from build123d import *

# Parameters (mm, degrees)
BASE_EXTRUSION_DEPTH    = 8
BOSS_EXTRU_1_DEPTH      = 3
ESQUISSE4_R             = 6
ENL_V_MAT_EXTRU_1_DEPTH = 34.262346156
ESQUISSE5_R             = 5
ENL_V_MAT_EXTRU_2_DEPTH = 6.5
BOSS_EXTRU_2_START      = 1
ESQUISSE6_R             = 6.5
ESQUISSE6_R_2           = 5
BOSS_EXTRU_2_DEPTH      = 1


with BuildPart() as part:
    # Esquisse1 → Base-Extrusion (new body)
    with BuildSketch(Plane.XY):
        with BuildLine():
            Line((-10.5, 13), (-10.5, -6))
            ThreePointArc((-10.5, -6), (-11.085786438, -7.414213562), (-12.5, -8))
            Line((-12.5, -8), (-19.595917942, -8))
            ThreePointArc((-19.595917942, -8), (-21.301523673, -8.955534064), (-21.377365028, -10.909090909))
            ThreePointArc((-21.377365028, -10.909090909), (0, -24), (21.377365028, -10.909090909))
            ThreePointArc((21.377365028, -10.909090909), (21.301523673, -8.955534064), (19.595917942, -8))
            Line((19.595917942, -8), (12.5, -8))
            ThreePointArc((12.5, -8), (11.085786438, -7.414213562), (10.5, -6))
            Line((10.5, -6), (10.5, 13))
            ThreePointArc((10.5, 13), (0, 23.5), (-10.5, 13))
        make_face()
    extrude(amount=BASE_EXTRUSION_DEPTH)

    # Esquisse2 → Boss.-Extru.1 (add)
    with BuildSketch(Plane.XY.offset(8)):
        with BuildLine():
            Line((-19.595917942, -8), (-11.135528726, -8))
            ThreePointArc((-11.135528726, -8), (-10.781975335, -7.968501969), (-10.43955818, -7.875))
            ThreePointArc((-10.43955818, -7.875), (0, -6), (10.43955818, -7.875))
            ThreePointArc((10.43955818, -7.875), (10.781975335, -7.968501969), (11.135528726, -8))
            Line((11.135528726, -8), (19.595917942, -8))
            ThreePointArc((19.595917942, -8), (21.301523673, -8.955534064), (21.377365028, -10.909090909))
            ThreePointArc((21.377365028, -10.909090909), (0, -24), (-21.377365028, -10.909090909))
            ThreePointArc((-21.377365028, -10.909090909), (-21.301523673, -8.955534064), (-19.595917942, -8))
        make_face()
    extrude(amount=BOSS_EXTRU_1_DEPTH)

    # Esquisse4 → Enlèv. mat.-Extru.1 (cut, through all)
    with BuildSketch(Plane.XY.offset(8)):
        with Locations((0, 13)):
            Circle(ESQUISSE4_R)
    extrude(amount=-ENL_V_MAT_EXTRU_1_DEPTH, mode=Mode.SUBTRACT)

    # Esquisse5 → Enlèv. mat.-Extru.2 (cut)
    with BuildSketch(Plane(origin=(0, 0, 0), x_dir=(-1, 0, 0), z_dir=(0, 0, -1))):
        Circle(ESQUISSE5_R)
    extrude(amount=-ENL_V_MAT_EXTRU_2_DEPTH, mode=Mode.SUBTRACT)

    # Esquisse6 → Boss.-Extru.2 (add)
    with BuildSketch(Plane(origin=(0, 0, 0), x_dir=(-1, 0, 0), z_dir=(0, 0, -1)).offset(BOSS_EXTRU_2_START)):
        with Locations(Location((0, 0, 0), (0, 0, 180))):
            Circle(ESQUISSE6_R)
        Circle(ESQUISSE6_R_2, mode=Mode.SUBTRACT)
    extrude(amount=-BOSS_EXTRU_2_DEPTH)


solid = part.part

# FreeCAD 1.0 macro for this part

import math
import FreeCAD as App
import Part
import Sketcher
from FreeCAD import Vector

doc = App.newDocument("Part")
body = doc.addObject("PartDesign::Body", "Body")

sketch1 = doc.addObject("Sketcher::SketchObject", "Sketch")
body.addObject(sketch1)
sketch1.AttachmentSupport = (doc.XY_Plane, [""])
sketch1.MapMode = "FlatFace"
sketch1.addGeometry([
    Part.LineSegment(Vector(-10.5, 13, 0), Vector(-10.5, -6, 0)),
    Part.ArcOfCircle(Part.Circle(Vector(-12.5, -6, 0), Vector(0, 0, 1), 2), math.radians(-90), math.radians(0)),
    Part.LineSegment(Vector(-12.5, -8, 0), Vector(-19.6, -8, 0)),
    Part.ArcOfCircle(Part.Circle(Vector(-19.6, -10, 0), Vector(0, 0, 1), 2), math.radians(90), math.radians(207)),
    Part.ArcOfCircle(Part.Circle(Vector(0, 0, 0), Vector(0, 0, 1), 24), math.radians(-153), math.radians(-27)),
    Part.ArcOfCircle(Part.Circle(Vector(19.6, -10, 0), Vector(0, 0, 1), 2), math.radians(-27), math.radians(90)),
    Part.LineSegment(Vector(19.6, -8, 0), Vector(12.5, -8, 0)),
    Part.ArcOfCircle(Part.Circle(Vector(12.5, -6, 0), Vector(0, 0, 1), 2), math.radians(-180), math.radians(-90)),
    Part.LineSegment(Vector(10.5, -6, 0), Vector(10.5, 13, 0)),
    Part.ArcOfCircle(Part.Circle(Vector(0, 13, 0), Vector(0, 0, 1), 10.5), math.radians(0), math.radians(180)),
], False)
sketch1.addConstraint([
    Sketcher.Constraint("Tangent", 0, 2, 1, 2),
    Sketcher.Constraint("Tangent", 1, 1, 2, 1),
    Sketcher.Constraint("Tangent", 2, 2, 3, 1),
    Sketcher.Constraint("Tangent", 3, 2, 4, 1),
    Sketcher.Constraint("Tangent", 4, 2, 5, 1),
    Sketcher.Constraint("Tangent", 5, 2, 6, 1),
    Sketcher.Constraint("Tangent", 6, 2, 7, 2),
    Sketcher.Constraint("Tangent", 7, 1, 8, 1),
    Sketcher.Constraint("Tangent", 8, 2, 9, 1),
    Sketcher.Constraint("Tangent", 9, 2, 0, 1),
    Sketcher.Constraint("Vertical", 0),
    Sketcher.Constraint("Horizontal", 2),
    Sketcher.Constraint("Horizontal", 6),
    Sketcher.Constraint("Vertical", 8),
    Sketcher.Constraint("Coincident", 4, 3, -1, 1),
    Sketcher.Constraint("Equal", 1, 3),
    Sketcher.Constraint("Equal", 3, 5),
    Sketcher.Constraint("Equal", 5, 7),
    Sketcher.Constraint("Symmetric", 1, 3, 7, 3, -2),
    Sketcher.Constraint("Radius", 1, 2.0),
    Sketcher.Constraint("Radius", 4, 24.0),
    Sketcher.Constraint("Radius", 9, 10.5),
    Sketcher.Constraint("DistanceY", 0, 2, 0, 1, 19.0),
    Sketcher.Constraint("DistanceY", 1, 3, -1, 1, 6.0),
])
pad1 = doc.addObject("PartDesign::Pad", "Pad")
body.addObject(pad1)
pad1.Profile = sketch1
pad1.Length = 8

sketch2 = doc.addObject("Sketcher::SketchObject", "Sketch001")
body.addObject(sketch2)
sketch2.AttachmentSupport = (doc.XY_Plane, [""])
sketch2.MapMode = "FlatFace"
sketch2.AttachmentOffset = App.Placement(Vector(0, 0, 8), App.Rotation())
sketch2.addGeometry([
    Part.LineSegment(Vector(-11.1, -8, 0), Vector(-19.6, -8, 0)),
    Part.ArcOfCircle(Part.Circle(Vector(-19.6, -10, 0), Vector(0, 0, 1), 2), math.radians(90), math.radians(207)),
    Part.ArcOfCircle(Part.Circle(Vector(0, 0, 0), Vector(0, 0, 1), 24), math.radians(-153), math.radians(-27)),
    Part.ArcOfCircle(Part.Circle(Vector(19.6, -10, 0), Vector(0, 0, 1), 2), math.radians(-27), math.radians(90)),
    Part.LineSegment(Vector(19.6, -8, 0), Vector(11.1, -8, 0)),
    Part.ArcOfCircle(Part.Circle(Vector(11.1, -6, 0), Vector(0, 0, 1), 2), math.radians(-110), math.radians(-90)),
    Part.ArcOfCircle(Part.Circle(Vector(0, -36, 0), Vector(0, 0, 1), 30), math.radians(70), math.radians(110)),
    Part.ArcOfCircle(Part.Circle(Vector(-11.1, -6, 0), Vector(0, 0, 1), 2), math.radians(-90), math.radians(-70)),
], False)
sketch2.addConstraint([
    Sketcher.Constraint("Tangent", 0, 2, 1, 1),
    Sketcher.Constraint("Tangent", 1, 2, 2, 1),
    Sketcher.Constraint("Tangent", 2, 2, 3, 1),
    Sketcher.Constraint("Tangent", 3, 2, 4, 1),
    Sketcher.Constraint("Tangent", 4, 2, 5, 2),
    Sketcher.Constraint("Tangent", 5, 1, 6, 1),
    Sketcher.Constraint("Tangent", 6, 2, 7, 2),
    Sketcher.Constraint("Tangent", 7, 1, 0, 1),
    Sketcher.Constraint("Horizontal", 0),
    Sketcher.Constraint("Horizontal", 4),
    Sketcher.Constraint("Coincident", 2, 3, -1, 1),
    Sketcher.Constraint("Equal", 1, 3),
    Sketcher.Constraint("Equal", 3, 5),
    Sketcher.Constraint("Equal", 5, 7),
    Sketcher.Constraint("Symmetric", 5, 3, 7, 3, -2),
    Sketcher.Constraint("Radius", 1, 2.0),
    Sketcher.Constraint("Radius", 2, 24.0),
    Sketcher.Constraint("Radius", 6, 30.0),
    Sketcher.Constraint("DistanceY", 1, 3, -1, 1, 10.0),
    Sketcher.Constraint("DistanceY", 6, 3, -1, 1, 36.0),
])
pad2 = doc.addObject("PartDesign::Pad", "Pad001")
body.addObject(pad2)
pad2.Profile = sketch2
pad2.Length = 3

sketch3 = doc.addObject("Sketcher::SketchObject", "Sketch002")
body.addObject(sketch3)
sketch3.AttachmentSupport = (doc.XY_Plane, [""])
sketch3.MapMode = "FlatFace"
sketch3.AttachmentOffset = App.Placement(Vector(0, 0, 8), App.Rotation())
sketch3.addGeometry(Part.Circle(Vector(0, 13, 0), Vector(0, 0, 1), 6), False)
sketch3.addConstraint([
    Sketcher.Constraint("PointOnObject", 0, 3, -2),
    Sketcher.Constraint("Diameter", 0, 12.0),
    Sketcher.Constraint("DistanceY", -1, 1, 0, 3, 13.0),
])
pocket1 = doc.addObject("PartDesign::Pocket", "Pocket")
body.addObject(pocket1)
pocket1.Profile = sketch3
pocket1.Type = "ThroughAll"

sketch4 = doc.addObject("Sketcher::SketchObject", "Sketch003")
body.addObject(sketch4)
sketch4.AttachmentSupport = (doc.XY_Plane, [""])
sketch4.MapMode = "FlatFace"
sketch4.addGeometry(Part.Circle(Vector(0, 0, 0), Vector(0, 0, 1), 5), False)
sketch4.addConstraint([
    Sketcher.Constraint("Coincident", 0, 3, -1, 1),
    Sketcher.Constraint("Diameter", 0, 10.0),
])
pocket2 = doc.addObject("PartDesign::Pocket", "Pocket001")
body.addObject(pocket2)
pocket2.Profile = sketch4
pocket2.Length = 6.5
pocket2.Reversed = True

sketch5 = doc.addObject("Sketcher::SketchObject", "Sketch004")
body.addObject(sketch5)
sketch5.AttachmentSupport = (doc.XY_Plane, [""])
sketch5.MapMode = "FlatFace"
sketch5.AttachmentOffset = App.Placement(Vector(0, 0, -1), App.Rotation())
sketch5.addGeometry([
    Part.Circle(Vector(0, 0, 0), Vector(0, 0, 1), 6),
    Part.Circle(Vector(0, 0, 0), Vector(0, 0, 1), 5),
], False)
sketch5.addConstraint([
    Sketcher.Constraint("Coincident", 0, 3, -1, 1),
    Sketcher.Constraint("Coincident", 1, 3, -1, 1),
    Sketcher.Constraint("Diameter", 0, 13.0),
    Sketcher.Constraint("Diameter", 1, 10.0),
])
pad3 = doc.addObject("PartDesign::Pad", "Pad002")
body.addObject(pad3)
pad3.Profile = sketch5
pad3.Length = 1

doc.recompute()
